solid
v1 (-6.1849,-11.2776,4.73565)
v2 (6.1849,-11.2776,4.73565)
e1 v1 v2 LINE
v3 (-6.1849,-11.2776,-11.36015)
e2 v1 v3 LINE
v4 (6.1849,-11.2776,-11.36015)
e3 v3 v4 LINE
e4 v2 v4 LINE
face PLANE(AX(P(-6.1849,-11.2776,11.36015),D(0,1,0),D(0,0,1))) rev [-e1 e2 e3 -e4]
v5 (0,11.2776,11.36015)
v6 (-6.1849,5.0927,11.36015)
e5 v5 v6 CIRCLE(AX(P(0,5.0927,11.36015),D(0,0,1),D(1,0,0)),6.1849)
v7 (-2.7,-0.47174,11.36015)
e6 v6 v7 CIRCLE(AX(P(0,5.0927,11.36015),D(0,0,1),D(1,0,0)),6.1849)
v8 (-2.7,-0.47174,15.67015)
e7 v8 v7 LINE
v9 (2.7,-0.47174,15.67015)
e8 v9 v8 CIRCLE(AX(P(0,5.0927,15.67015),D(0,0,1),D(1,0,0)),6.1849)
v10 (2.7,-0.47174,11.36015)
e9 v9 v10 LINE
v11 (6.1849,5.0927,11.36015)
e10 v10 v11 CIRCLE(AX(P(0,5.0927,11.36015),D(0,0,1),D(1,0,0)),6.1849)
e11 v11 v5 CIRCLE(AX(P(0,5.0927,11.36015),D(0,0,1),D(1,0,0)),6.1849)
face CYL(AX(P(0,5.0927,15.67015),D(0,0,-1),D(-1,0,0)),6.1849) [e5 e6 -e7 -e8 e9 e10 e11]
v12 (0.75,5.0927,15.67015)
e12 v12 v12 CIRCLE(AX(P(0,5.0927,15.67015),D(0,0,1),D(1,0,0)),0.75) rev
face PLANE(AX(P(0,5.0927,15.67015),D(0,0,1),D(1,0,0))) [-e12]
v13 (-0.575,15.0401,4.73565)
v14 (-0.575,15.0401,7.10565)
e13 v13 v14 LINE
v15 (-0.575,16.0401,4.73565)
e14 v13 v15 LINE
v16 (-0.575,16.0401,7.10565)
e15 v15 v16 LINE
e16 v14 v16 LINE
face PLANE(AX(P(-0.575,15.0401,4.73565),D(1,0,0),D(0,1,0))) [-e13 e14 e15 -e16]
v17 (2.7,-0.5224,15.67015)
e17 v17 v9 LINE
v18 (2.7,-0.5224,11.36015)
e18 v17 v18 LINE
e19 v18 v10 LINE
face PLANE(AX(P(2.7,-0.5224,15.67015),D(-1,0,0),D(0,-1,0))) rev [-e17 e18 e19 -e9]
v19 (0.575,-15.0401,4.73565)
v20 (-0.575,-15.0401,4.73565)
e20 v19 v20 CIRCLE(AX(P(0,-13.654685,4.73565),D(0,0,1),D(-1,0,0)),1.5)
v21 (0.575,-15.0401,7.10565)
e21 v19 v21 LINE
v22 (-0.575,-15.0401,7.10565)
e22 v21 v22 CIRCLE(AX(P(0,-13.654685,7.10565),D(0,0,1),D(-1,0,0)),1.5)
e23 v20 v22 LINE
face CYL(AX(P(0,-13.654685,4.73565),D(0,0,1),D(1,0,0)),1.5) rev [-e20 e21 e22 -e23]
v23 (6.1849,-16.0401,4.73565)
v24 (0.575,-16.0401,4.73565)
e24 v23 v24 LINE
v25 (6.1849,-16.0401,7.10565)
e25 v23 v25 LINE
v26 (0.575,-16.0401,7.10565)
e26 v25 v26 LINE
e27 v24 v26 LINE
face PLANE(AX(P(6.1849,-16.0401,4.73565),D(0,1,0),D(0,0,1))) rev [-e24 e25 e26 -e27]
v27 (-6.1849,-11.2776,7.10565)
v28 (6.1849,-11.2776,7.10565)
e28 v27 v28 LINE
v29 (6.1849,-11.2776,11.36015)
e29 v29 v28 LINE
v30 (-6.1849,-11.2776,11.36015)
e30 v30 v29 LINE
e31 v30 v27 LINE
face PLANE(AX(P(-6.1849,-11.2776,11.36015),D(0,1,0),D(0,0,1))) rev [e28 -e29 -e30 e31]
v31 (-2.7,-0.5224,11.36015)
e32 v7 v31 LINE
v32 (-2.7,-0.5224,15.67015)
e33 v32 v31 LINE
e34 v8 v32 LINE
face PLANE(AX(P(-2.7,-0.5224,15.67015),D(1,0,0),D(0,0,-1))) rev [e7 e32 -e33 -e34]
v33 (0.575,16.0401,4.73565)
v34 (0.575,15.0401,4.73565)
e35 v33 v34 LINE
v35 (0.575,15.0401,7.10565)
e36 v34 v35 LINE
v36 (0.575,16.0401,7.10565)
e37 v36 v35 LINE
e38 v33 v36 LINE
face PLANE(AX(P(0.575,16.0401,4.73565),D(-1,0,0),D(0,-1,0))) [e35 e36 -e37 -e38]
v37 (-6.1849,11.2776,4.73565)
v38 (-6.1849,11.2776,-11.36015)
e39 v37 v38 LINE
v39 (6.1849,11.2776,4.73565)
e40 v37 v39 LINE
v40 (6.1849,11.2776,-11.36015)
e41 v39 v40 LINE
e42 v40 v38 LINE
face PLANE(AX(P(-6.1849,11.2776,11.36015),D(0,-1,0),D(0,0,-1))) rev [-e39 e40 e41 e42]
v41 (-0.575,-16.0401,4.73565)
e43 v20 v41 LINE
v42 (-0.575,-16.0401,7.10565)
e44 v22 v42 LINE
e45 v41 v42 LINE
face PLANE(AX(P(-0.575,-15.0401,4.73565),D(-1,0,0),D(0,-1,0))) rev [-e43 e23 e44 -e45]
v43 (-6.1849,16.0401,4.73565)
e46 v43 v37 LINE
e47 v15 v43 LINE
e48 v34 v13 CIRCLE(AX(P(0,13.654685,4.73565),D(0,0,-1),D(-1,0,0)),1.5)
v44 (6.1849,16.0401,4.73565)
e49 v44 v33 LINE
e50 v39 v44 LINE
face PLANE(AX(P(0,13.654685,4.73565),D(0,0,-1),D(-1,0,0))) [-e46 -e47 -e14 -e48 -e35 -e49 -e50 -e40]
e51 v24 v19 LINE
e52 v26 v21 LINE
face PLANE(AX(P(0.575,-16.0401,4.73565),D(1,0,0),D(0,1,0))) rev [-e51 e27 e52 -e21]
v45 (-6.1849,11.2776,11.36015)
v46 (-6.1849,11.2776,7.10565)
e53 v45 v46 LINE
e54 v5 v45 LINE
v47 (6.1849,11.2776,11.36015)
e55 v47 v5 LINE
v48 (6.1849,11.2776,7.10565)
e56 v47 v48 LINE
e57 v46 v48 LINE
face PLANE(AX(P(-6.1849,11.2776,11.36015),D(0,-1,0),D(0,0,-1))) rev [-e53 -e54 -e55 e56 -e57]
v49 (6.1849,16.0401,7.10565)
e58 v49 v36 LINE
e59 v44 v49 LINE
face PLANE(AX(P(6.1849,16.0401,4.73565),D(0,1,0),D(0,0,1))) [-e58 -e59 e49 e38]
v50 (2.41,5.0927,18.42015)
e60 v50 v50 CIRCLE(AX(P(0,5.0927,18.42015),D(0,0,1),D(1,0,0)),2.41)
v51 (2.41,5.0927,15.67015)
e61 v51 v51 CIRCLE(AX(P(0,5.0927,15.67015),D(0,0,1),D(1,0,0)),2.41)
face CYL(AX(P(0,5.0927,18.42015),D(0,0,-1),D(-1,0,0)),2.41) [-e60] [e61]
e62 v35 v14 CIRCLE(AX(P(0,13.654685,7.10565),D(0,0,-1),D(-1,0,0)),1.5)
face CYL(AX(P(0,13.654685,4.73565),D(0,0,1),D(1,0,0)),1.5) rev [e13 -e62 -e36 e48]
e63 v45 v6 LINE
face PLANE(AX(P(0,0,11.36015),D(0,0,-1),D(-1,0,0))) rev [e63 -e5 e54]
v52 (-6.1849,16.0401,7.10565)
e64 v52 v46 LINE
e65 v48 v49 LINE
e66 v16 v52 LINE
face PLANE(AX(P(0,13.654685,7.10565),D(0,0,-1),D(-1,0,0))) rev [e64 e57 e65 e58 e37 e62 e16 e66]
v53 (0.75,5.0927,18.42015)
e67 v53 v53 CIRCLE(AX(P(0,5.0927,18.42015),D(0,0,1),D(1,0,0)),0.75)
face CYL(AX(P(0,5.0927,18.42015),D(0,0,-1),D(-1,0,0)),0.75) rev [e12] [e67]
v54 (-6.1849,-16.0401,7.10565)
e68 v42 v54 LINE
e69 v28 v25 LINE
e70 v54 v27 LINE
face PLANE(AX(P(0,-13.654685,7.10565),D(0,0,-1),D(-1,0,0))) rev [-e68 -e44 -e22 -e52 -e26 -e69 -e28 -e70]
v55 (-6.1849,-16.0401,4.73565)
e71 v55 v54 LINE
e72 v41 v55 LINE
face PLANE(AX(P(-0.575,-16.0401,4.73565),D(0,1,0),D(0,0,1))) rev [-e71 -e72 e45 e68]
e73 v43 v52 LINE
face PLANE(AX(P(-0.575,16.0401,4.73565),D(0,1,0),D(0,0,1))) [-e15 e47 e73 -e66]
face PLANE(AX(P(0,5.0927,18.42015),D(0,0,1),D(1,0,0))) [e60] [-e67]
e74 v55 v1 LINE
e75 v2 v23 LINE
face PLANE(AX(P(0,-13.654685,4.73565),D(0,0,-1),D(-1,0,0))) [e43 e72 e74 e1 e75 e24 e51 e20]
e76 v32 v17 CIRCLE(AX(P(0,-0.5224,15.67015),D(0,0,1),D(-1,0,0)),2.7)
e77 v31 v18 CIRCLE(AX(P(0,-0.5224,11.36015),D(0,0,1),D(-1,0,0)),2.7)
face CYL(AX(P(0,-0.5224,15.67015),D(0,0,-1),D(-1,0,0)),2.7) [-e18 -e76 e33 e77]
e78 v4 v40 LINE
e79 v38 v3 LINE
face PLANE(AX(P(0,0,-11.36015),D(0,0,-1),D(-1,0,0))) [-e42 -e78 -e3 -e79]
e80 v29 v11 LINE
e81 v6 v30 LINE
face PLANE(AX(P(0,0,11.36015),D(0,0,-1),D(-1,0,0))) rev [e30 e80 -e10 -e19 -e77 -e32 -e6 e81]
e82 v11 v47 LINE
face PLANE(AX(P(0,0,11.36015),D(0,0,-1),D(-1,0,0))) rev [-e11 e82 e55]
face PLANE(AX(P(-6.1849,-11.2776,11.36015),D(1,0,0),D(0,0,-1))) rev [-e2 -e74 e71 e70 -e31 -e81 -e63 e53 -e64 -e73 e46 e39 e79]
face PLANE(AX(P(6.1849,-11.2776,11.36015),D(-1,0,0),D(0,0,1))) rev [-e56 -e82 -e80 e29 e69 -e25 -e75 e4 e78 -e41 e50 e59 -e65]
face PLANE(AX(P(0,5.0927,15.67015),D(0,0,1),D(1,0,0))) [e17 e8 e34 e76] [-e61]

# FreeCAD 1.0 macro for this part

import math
import FreeCAD as App
import Part
import Sketcher
from FreeCAD import Vector
Q = App.Units.Quantity

doc = App.newDocument("Part")
params = doc.addObject("Spreadsheet::Sheet", "Params")
for row, (alias, value) in enumerate([
    ("pad1_length", "22.7203 mm"),
    ("sketch2_radius", "1.5 mm"),
    ("sketch2_height", "1 mm"),
    ("pad2_length", "2.37 mm"),
    ("sketch3_radius", "2.7 mm"),
    ("pad3_length", "4.31 mm"),
    ("sketch4_diameter", "1.5 mm"),
    ("sketch4_diameter2", "4.82 mm"),
    ("pad4_length", "2.75 mm"),
], start=1):
    params.set(f"A{row}", alias)
    params.set(f"B{row}", "=" + value)
    params.setAlias(f"B{row}", alias)

body = doc.addObject("PartDesign::Body", "Body")

sketch1 = body.newObject("Sketcher::SketchObject", "Sketch")
sketch1.AttachmentSupport = (doc.getObject("XY_Plane"), [""])
sketch1.MapMode = "FlatFace"
sketch1.addGeometry(Part.LineSegment(Vector(-6, 11, 0), Vector(-6, -11, 0)), False)
sketch1.addGeometry(Part.LineSegment(Vector(-6, -11, 0), Vector(6, -11, 0)), False)
sketch1.addGeometry(Part.LineSegment(Vector(6, -11, 0), Vector(6, 11, 0)), False)
sketch1.addGeometry(Part.LineSegment(Vector(6, 11, 0), Vector(-6, 11, 0)), False)
sketch1.addConstraint(Sketcher.Constraint("Coincident", 0, 2, 1, 1))
sketch1.addConstraint(Sketcher.Constraint("Coincident", 1, 2, 2, 1))
sketch1.addConstraint(Sketcher.Constraint("Coincident", 2, 2, 3, 1))
sketch1.addConstraint(Sketcher.Constraint("Coincident", 3, 2, 0, 1))
sketch1.addConstraint(Sketcher.Constraint("Vertical", 0))
sketch1.addConstraint(Sketcher.Constraint("Horizontal", 1))
sketch1.addConstraint(Sketcher.Constraint("Vertical", 2))
sketch1.addConstraint(Sketcher.Constraint("Horizontal", 3))
sketch1.addConstraint(Sketcher.Constraint("Symmetric", 0, 2, 2, 2, -1, 1))
sketch1.addConstraint(Sketcher.Constraint("DistanceX", 1, 1, 1, 2, Q("12.3698 mm")))
sketch1.addConstraint(Sketcher.Constraint("DistanceY", 0, 2, 0, 1, Q("22.5552 mm")))
pad1 = body.newObject("PartDesign::Pad", "Pad")
pad1.Profile = sketch1
pad1.setExpression("Length", "Params.pad1_length")
pad1.Midplane = True

sketch2 = body.newObject("Sketcher::SketchObject", "Sketch001")
sketch2.AttachmentSupport = (doc.getObject("XY_Plane"), [""])
sketch2.MapMode = "FlatFace"
sketch2.AttachmentOffset = App.Placement(Vector(0, 0, 7.10565), App.Rotation())
sketch2.addGeometry(Part.LineSegment(Vector(-0.6, 16, 0), Vector(-6.2, 16, 0)), False)
sketch2.addGeometry(Part.LineSegment(Vector(-6.2, 16, 0), Vector(-6.2, 11.3, 0)), False)
sketch2.addGeometry(Part.LineSegment(Vector(-6.2, 11.3, 0), Vector(6.2, 11.3, 0)), False)
sketch2.addGeometry(Part.LineSegment(Vector(6.2, 11.3, 0), Vector(6.2, 16, 0)), False)
sketch2.addGeometry(Part.LineSegment(Vector(6.2, 16, 0), Vector(0.6, 16, 0)), False)
sketch2.addGeometry(Part.LineSegment(Vector(0.6, 16, 0), Vector(0.6, 15, 0)), False)
sketch2.addGeometry(Part.ArcOfCircle(Part.Circle(Vector(0, 13.7, 0), Vector(0, 0, 1), 1.5), math.radians(113), math.radians(427)), False)
sketch2.addGeometry(Part.LineSegment(Vector(-0.6, 15, 0), Vector(-0.6, 16, 0)), False)
sketch2.addConstraint(Sketcher.Constraint("Coincident", 0, 2, 1, 1))
sketch2.addConstraint(Sketcher.Constraint("Coincident", 1, 2, 2, 1))
sketch2.addConstraint(Sketcher.Constraint("Coincident", 2, 2, 3, 1))
sketch2.addConstraint(Sketcher.Constraint("Coincident", 3, 2, 4, 1))
sketch2.addConstraint(Sketcher.Constraint("Coincident", 4, 2, 5, 1))
sketch2.addConstraint(Sketcher.Constraint("Coincident", 5, 2, 6, 2))
sketch2.addConstraint(Sketcher.Constraint("Coincident", 6, 1, 7, 1))
sketch2.addConstraint(Sketcher.Constraint("Coincident", 7, 2, 0, 1))
sketch2.addConstraint(Sketcher.Constraint("Horizontal", 0))
sketch2.addConstraint(Sketcher.Constraint("Vertical", 1))
sketch2.addConstraint(Sketcher.Constraint("Horizontal", 2))
sketch2.addConstraint(Sketcher.Constraint("Vertical", 3))
sketch2.addConstraint(Sketcher.Constraint("Horizontal", 4))
sketch2.addConstraint(Sketcher.Constraint("Vertical", 5))
sketch2.addConstraint(Sketcher.Constraint("Vertical", 7))
sketch2.addConstraint(Sketcher.Constraint("Symmetric", 0, 2, 3, 2, -2))
sketch2.addConstraint(Sketcher.Constraint("Symmetric", 5, 2, 6, 1, -2))
sketch2.addConstraint(Sketcher.Constraint("Radius", 6, Q("1.5 mm")))
sketch2.addConstraint(Sketcher.Constraint("DistanceY", 5, 2, 5, 1, Q("1 mm")))
sketch2.addConstraint(Sketcher.Constraint("DistanceX", 6, 1, 5, 2, Q("1.15 mm")))
sketch2.addConstraint(Sketcher.Constraint("DistanceX", 0, 2, 0, 1, Q("5.6099 mm")))
sketch2.addConstraint(Sketcher.Constraint("DistanceY", 1, 2, 1, 1, Q("4.7625 mm")))
sketch2.addConstraint(Sketcher.Constraint("DistanceY", -1, 1, 0, 2, Q("16.0401 mm")))
sketch2.setExpression("Constraints[17]", "Params.sketch2_radius")
sketch2.setExpression("Constraints[18]", "Params.sketch2_height")
pad2 = body.newObject("PartDesign::Pad", "Pad001")
pad2.Profile = sketch2
pad2.setExpression("Length", "Params.pad2_length")
pad2.Reversed = True
doc.recompute()

mirrored = body.newObject("PartDesign::Mirrored", "Mirrored")
mirrored.Originals = [pad2]
mirrored.MirrorPlane = (doc.getObject("XZ_Plane"), [""])
body.Tip = mirrored

sketch3 = body.newObject("Sketcher::SketchObject", "Sketch002")
sketch3.AttachmentSupport = (doc.getObject("XY_Plane"), [""])
sketch3.MapMode = "FlatFace"
sketch3.AttachmentOffset = App.Placement(Vector(0, 0, 11.36015), App.Rotation())
sketch3.addGeometry(Part.LineSegment(Vector(2.7, -0.52, 0), Vector(2.7, -0.47, 0)), False)
sketch3.addGeometry(Part.ArcOfCircle(Part.Circle(Vector(0, 5.09, 0), Vector(0, 0, 1), 6.18), math.radians(-64), math.radians(244)), False)
sketch3.addGeometry(Part.LineSegment(Vector(-2.7, -0.47, 0), Vector(-2.7, -0.52, 0)), False)
sketch3.addGeometry(Part.ArcOfCircle(Part.Circle(Vector(0, -0.52, 0), Vector(0, 0, 1), 2.7), math.radians(180), math.radians(360)), False)
sketch3.addConstraint(Sketcher.Constraint("Coincident", 0, 2, 1, 1))
sketch3.addConstraint(Sketcher.Constraint("Coincident", 1, 2, 2, 1))
sketch3.addConstraint(Sketcher.Constraint("Tangent", 2, 2, 3, 1))
sketch3.addConstraint(Sketcher.Constraint("Tangent", 3, 2, 0, 1))
sketch3.addConstraint(Sketcher.Constraint("Vertical", 0))
sketch3.addConstraint(Sketcher.Constraint("Vertical", 2))
sketch3.addConstraint(Sketcher.Constraint("Symmetric", 0, 2, 1, 2, -2))
sketch3.addConstraint(Sketcher.Constraint("Radius", 3, Q("2.7 mm")))
sketch3.addConstraint(Sketcher.Constraint("Radius", 1, Q("6.1849 mm")))
sketch3.addConstraint(Sketcher.Constraint("DistanceY", 0, 1, 0, 2, Q("0.05066 mm")))
sketch3.addConstraint(Sketcher.Constraint("DistanceY", -1, 1, 1, 3, Q("5.0927 mm")))
sketch3.setExpression("Constraints[7]", "Params.sketch3_radius")
pad3 = body.newObject("PartDesign::Pad", "Pad002")
pad3.Profile = sketch3
pad3.setExpression("Length", "Params.pad3_length")

sketch4 = body.newObject("Sketcher::SketchObject", "Sketch003")
sketch4.AttachmentSupport = (doc.getObject("XY_Plane"), [""])
sketch4.MapMode = "FlatFace"
sketch4.AttachmentOffset = App.Placement(Vector(0, 0, 15.67015), App.Rotation())
sketch4.addGeometry(Part.Circle(Vector(0, 5.1, 0), Vector(0, 0, 1), 2.4), False)
sketch4.addGeometry(Part.Circle(Vector(0, 5.1, 0), Vector(0, 0, 1), 0.8), False)
sketch4.addConstraint(Sketcher.Constraint("Coincident", 1, 3, 0, 3))
sketch4.addConstraint(Sketcher.Constraint("PointOnObject", 0, 3, -2))
sketch4.addConstraint(Sketcher.Constraint("Diameter", 1, Q("1.5 mm")))
sketch4.addConstraint(Sketcher.Constraint("Diameter", 0, Q("4.82 mm")))
sketch4.addConstraint(Sketcher.Constraint("DistanceY", -1, 1, 0, 3, Q("5.0927 mm")))
sketch4.setExpression("Constraints[2]", "Params.sketch4_diameter")
sketch4.setExpression("Constraints[3]", "Params.sketch4_diameter2")
pad4 = body.newObject("PartDesign::Pad", "Pad003")
pad4.Profile = sketch4
pad4.setExpression("Length", "Params.pad4_length")

doc.recompute()
